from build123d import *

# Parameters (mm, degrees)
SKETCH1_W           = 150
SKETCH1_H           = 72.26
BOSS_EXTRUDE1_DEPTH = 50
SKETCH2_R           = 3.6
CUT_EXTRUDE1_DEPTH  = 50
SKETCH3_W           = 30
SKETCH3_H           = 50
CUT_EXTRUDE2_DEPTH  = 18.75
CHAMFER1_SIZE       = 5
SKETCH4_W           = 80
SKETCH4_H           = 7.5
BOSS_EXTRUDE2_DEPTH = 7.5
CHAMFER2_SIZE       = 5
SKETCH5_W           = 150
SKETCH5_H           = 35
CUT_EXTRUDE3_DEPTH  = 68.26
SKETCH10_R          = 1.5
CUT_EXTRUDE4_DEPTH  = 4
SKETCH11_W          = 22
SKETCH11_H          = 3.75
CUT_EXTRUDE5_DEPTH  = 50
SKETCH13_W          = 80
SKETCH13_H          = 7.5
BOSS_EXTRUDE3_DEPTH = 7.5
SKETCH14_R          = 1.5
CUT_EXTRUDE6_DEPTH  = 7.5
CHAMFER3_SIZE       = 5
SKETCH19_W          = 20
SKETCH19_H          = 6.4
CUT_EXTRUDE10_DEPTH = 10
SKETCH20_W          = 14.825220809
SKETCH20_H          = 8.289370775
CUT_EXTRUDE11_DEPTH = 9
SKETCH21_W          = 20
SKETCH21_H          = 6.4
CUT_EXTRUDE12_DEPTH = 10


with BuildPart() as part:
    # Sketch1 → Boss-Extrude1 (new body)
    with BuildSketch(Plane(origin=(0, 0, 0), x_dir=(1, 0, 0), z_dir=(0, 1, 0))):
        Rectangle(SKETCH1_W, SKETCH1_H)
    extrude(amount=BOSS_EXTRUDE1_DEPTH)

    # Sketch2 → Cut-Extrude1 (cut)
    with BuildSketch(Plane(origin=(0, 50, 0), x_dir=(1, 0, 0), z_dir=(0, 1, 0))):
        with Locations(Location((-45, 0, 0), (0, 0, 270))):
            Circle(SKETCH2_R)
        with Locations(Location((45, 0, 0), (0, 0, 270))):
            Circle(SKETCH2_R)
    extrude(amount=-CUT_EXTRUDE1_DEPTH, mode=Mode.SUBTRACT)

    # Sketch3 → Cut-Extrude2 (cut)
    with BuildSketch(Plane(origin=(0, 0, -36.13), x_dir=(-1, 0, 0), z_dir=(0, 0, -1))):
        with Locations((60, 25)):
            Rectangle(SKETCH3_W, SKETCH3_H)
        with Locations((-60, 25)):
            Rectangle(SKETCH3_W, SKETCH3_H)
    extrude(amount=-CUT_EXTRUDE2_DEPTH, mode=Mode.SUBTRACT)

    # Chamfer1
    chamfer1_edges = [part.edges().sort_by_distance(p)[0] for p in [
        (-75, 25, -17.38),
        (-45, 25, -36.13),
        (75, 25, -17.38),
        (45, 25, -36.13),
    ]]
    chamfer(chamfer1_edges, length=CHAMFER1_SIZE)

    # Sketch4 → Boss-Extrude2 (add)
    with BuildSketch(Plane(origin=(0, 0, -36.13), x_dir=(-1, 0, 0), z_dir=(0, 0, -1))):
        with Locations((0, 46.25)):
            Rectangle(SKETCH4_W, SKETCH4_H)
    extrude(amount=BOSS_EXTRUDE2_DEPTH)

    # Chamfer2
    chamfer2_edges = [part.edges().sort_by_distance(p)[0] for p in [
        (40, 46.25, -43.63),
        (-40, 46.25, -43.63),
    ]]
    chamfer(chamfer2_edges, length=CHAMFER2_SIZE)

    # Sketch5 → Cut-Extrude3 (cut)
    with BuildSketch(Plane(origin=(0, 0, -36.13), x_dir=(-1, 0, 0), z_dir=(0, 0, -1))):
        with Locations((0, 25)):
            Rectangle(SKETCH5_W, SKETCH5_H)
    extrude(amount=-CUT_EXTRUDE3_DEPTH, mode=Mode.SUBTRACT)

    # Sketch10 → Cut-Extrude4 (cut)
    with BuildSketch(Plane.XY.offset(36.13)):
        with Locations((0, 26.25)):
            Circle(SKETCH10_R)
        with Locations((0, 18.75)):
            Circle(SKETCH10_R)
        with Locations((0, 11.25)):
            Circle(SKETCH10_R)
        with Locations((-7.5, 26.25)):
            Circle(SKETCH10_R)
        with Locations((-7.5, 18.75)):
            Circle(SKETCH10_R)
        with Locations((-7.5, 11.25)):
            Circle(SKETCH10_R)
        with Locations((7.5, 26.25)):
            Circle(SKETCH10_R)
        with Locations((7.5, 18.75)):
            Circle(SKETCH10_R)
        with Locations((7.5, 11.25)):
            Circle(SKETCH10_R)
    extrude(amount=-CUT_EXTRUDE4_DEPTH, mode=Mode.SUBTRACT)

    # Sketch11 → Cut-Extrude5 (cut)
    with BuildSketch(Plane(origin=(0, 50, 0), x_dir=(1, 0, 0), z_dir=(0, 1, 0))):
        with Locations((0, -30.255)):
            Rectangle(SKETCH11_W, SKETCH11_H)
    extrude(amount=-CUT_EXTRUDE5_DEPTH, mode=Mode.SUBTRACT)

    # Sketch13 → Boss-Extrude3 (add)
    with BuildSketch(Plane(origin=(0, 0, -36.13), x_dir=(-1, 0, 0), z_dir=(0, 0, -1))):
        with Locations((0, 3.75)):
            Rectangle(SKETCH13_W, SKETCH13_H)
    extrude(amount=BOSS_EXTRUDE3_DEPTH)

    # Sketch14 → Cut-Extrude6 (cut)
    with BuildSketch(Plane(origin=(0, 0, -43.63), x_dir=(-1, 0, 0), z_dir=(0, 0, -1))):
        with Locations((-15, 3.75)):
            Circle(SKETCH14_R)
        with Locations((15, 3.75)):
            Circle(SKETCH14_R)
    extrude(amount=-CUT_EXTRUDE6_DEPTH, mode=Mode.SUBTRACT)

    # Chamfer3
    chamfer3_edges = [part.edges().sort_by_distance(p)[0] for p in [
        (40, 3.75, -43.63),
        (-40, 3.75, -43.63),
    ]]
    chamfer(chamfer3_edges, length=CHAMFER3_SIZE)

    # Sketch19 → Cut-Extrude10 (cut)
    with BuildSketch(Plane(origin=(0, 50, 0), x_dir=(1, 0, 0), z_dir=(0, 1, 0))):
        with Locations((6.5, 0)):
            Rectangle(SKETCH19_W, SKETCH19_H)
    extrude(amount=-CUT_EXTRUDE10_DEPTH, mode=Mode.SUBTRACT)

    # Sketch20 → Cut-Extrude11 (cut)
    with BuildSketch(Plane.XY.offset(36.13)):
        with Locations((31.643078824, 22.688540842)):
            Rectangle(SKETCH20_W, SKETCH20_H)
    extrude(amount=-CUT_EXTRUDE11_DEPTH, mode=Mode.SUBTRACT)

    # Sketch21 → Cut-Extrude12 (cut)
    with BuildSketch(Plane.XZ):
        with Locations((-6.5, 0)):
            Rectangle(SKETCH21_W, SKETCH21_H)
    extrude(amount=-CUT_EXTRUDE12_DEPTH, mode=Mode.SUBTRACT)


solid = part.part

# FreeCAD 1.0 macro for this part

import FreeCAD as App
import Part
import Sketcher

V = App.Vector


def edges_at(feature, points):
    """Names of the edges that pass closest to the given points."""
    edges = feature.Shape.Edges
    near = lambda p: min(range(len(edges)), key=lambda i: edges[i].distToShape(Part.Vertex(*p))[0])
    return sorted({f"Edge{near(p) + 1}" for p in points})

doc = App.newDocument("Part")
body = doc.addObject("PartDesign::Body", "Body")

sketch1 = body.newObject("Sketcher::SketchObject", "Sketch")
sketch1.AttachmentSupport = (doc.getObject("XZ_Plane"), [""])
sketch1.MapMode = "FlatFace"
sketch1.addGeometry([
    Part.LineSegment(V(-75, -36, 0), V(-75, 36, 0)),
    Part.LineSegment(V(-75, 36, 0), V(75, 36, 0)),
    Part.LineSegment(V(75, 36, 0), V(75, -36, 0)),
    Part.LineSegment(V(75, -36, 0), V(-75, -36, 0)),
], False)
sketch1.addConstraint([
    Sketcher.Constraint("Coincident", 0, 2, 1, 1),
    Sketcher.Constraint("Coincident", 1, 2, 2, 1),
    Sketcher.Constraint("Coincident", 2, 2, 3, 1),
    Sketcher.Constraint("Coincident", 3, 2, 0, 1),
    Sketcher.Constraint("Vertical", 0),
    Sketcher.Constraint("Horizontal", 1),
    Sketcher.Constraint("Vertical", 2),
    Sketcher.Constraint("Horizontal", 3),
    Sketcher.Constraint("Symmetric", 0, 2, 2, 2, -1, 1),
    Sketcher.Constraint("DistanceX", 1, 1, 1, 2, 150.0),
    Sketcher.Constraint("DistanceY", 0, 1, 0, 2, 72.26),
])
pad1 = body.newObject("PartDesign::Pad", "Pad")
pad1.Profile = sketch1
pad1.Length = 50
pad1.Reversed = True

sketch2 = body.newObject("Sketcher::SketchObject", "Sketch001")
sketch2.AttachmentSupport = (doc.getObject("XZ_Plane"), [""])
sketch2.MapMode = "FlatFace"
sketch2.AttachmentOffset = App.Placement(V(0, 0, -50), App.Rotation())
sketch2.addGeometry([
    Part.Circle(V(-45, 0, 0), V(0, 0, 1), 3.6),
    Part.Circle(V(45, 0, 0), V(0, 0, 1), 3.6),
], False)
sketch2.addConstraint([
    Sketcher.Constraint("Equal", 0, 1),
    Sketcher.Constraint("Symmetric", 0, 3, 1, 3, -1, 1),
    Sketcher.Constraint("PointOnObject", 0, 3, -1),
    Sketcher.Constraint("Diameter", 0, 7.2),
    Sketcher.Constraint("DistanceX", 0, 3, -1, 1, 45.0),
])
pocket1 = body.newObject("PartDesign::Pocket", "Pocket")
pocket1.Profile = sketch2
pocket1.Length = 50
pocket1.Reversed = True

sketch3 = body.newObject("Sketcher::SketchObject", "Sketch002")
sketch3.AttachmentSupport = (doc.getObject("XY_Plane"), [""])
sketch3.MapMode = "FlatFace"
sketch3.AttachmentOffset = App.Placement(V(0, 0, -36.13), App.Rotation())
sketch3.addGeometry([
    Part.LineSegment(V(-45, 50, 0), V(-45, 0, 0)),
    Part.LineSegment(V(-45, 0, 0), V(-75, 0, 0)),
    Part.LineSegment(V(-75, 0, 0), V(-75, 50, 0)),
    Part.LineSegment(V(-75, 50, 0), V(-45, 50, 0)),
    Part.LineSegment(V(75, 50, 0), V(75, 0, 0)),
    Part.LineSegment(V(75, 0, 0), V(45, 0, 0)),
    Part.LineSegment(V(45, 0, 0), V(45, 50, 0)),
    Part.LineSegment(V(45, 50, 0), V(75, 50, 0)),
], False)
sketch3.addConstraint([
    Sketcher.Constraint("Coincident", 0, 2, 1, 1),
    Sketcher.Constraint("Coincident", 1, 2, 2, 1),
    Sketcher.Constraint("Coincident", 2, 2, 3, 1),
    Sketcher.Constraint("Coincident", 3, 2, 0, 1),
    Sketcher.Constraint("Coincident", 4, 2, 5, 1),
    Sketcher.Constraint("Coincident", 5, 2, 6, 1),
    Sketcher.Constraint("Coincident", 6, 2, 7, 1),
    Sketcher.Constraint("Coincident", 7, 2, 4, 1),
    Sketcher.Constraint("Vertical", 0),
    Sketcher.Constraint("Horizontal", 1),
    Sketcher.Constraint("Vertical", 2),
    Sketcher.Constraint("Horizontal", 3),
    Sketcher.Constraint("Vertical", 4),
    Sketcher.Constraint("Horizontal", 5),
    Sketcher.Constraint("Vertical", 6),
    Sketcher.Constraint("Horizontal", 7),
    Sketcher.Constraint("Symmetric", 1, 2, 4, 2, -1, 1),
    Sketcher.Constraint("Symmetric", 0, 2, 5, 2, -2),
    Sketcher.Constraint("Horizontal", 3, 2, 6, 2),
    Sketcher.Constraint("DistanceX", 1, 2, 1, 1, 30.0),
    Sketcher.Constraint("DistanceY", 0, 2, 0, 1, 50.0),
    Sketcher.Constraint("DistanceX", 0, 2, -1, 1, 45.0),
])
pocket2 = body.newObject("PartDesign::Pocket", "Pocket001")
pocket2.Profile = sketch3
pocket2.Length = 18.75
pocket2.Reversed = True
doc.recompute()

chamfer = body.newObject("PartDesign::Chamfer", "Chamfer")
chamfer.Base = (pocket2, edges_at(pocket2, [
    (-75, 25, -17.38),
    (-45, 25, -36.13),
    (75, 25, -17.38),
    (45, 25, -36.13),
]))
chamfer.Size = 5

sketch4 = body.newObject("Sketcher::SketchObject", "Sketch003")
sketch4.AttachmentSupport = (doc.getObject("XY_Plane"), [""])
sketch4.MapMode = "FlatFace"
sketch4.AttachmentOffset = App.Placement(V(0, 0, -36.13), App.Rotation())
sketch4.addGeometry([
    Part.LineSegment(V(40, 50, 0), V(40, 42, 0)),
    Part.LineSegment(V(40, 42, 0), V(-40, 42, 0)),
    Part.LineSegment(V(-40, 42, 0), V(-40, 50, 0)),
    Part.LineSegment(V(-40, 50, 0), V(40, 50, 0)),
], False)
sketch4.addConstraint([
    Sketcher.Constraint("Coincident", 0, 2, 1, 1),
    Sketcher.Constraint("Coincident", 1, 2, 2, 1),
    Sketcher.Constraint("Coincident", 2, 2, 3, 1),
    Sketcher.Constraint("Coincident", 3, 2, 0, 1),
    Sketcher.Constraint("Vertical", 0),
    Sketcher.Constraint("Horizontal", 1),
    Sketcher.Constraint("Vertical", 2),
    Sketcher.Constraint("Horizontal", 3),
    Sketcher.Constraint("DistanceX", 1, 2, 1, 1, 80.0),
    Sketcher.Constraint("DistanceY", 0, 2, 0, 1, 7.5),
    Sketcher.Constraint("DistanceX", -1, 1, 0, 2, 40.0),
    Sketcher.Constraint("DistanceY", -1, 1, 2, 2, 50.0),
])
pad2 = body.newObject("PartDesign::Pad", "Pad001")
pad2.Profile = sketch4
pad2.Length = 7.5
pad2.Reversed = True
doc.recompute()

chamfer2 = body.newObject("PartDesign::Chamfer", "Chamfer001")
chamfer2.Base = (pad2, edges_at(pad2, [(40, 46.25, -43.63), (-40, 46.25, -43.63)]))
chamfer2.Size = 5

sketch5 = body.newObject("Sketcher::SketchObject", "Sketch004")
sketch5.AttachmentSupport = (doc.getObject("XY_Plane"), [""])
sketch5.MapMode = "FlatFace"
sketch5.AttachmentOffset = App.Placement(V(0, 0, -36.13), App.Rotation())
sketch5.addGeometry([
    Part.LineSegment(V(75, 42, 0), V(75, 8, 0)),
    Part.LineSegment(V(75, 8, 0), V(-75, 8, 0)),
    Part.LineSegment(V(-75, 8, 0), V(-75, 42, 0)),
    Part.LineSegment(V(-75, 42, 0), V(75, 42, 0)),
], False)
sketch5.addConstraint([
    Sketcher.Constraint("Coincident", 0, 2, 1, 1),
    Sketcher.Constraint("Coincident", 1, 2, 2, 1),
    Sketcher.Constraint("Coincident", 2, 2, 3, 1),
    Sketcher.Constraint("Coincident", 3, 2, 0, 1),
    Sketcher.Constraint("Vertical", 0),
    Sketcher.Constraint("Horizontal", 1),
    Sketcher.Constraint("Vertical", 2),
    Sketcher.Constraint("Horizontal", 3),
    Sketcher.Constraint("DistanceX", 1, 2, 1, 1, 150.0),
    Sketcher.Constraint("DistanceY", 0, 2, 0, 1, 35.0),
    Sketcher.Constraint("DistanceX", -1, 1, 0, 2, 75.0),
    Sketcher.Constraint("DistanceY", -1, 1, 0, 2, 7.5),
])
pocket3 = body.newObject("PartDesign::Pocket", "Pocket002")
pocket3.Profile = sketch5
pocket3.Length = 68.26
pocket3.Reversed = True

sketch6 = body.newObject("Sketcher::SketchObject", "Sketch005")
sketch6.AttachmentSupport = (doc.getObject("XY_Plane"), [""])
sketch6.MapMode = "FlatFace"
sketch6.AttachmentOffset = App.Placement(V(0, 0, 36.13), App.Rotation())
sketch6.addGeometry([
    Part.Circle(V(0, 26.2, 0), V(0, 0, 1), 1.5),
    Part.Circle(V(0, 18.8, 0), V(0, 0, 1), 1.5),
    Part.Circle(V(0, 11.2, 0), V(0, 0, 1), 1.5),
    Part.Circle(V(-7.5, 26.2, 0), V(0, 0, 1), 1.5),
    Part.Circle(V(-7.5, 18.8, 0), V(0, 0, 1), 1.5),
    Part.Circle(V(-7.5, 11.2, 0), V(0, 0, 1), 1.5),
    Part.Circle(V(7.5, 26.2, 0), V(0, 0, 1), 1.5),
    Part.Circle(V(7.5, 18.8, 0), V(0, 0, 1), 1.5),
    Part.Circle(V(7.5, 11.2, 0), V(0, 0, 1), 1.5),
], False)
sketch6.addConstraint([
    Sketcher.Constraint("Equal", 0, 1),
    Sketcher.Constraint("Equal", 1, 2),
    Sketcher.Constraint("Equal", 2, 3),
    Sketcher.Constraint("Equal", 3, 4),
    Sketcher.Constraint("Equal", 4, 5),
    Sketcher.Constraint("Equal", 5, 6),
    Sketcher.Constraint("Equal", 6, 7),
    Sketcher.Constraint("Equal", 7, 8),
    Sketcher.Constraint("Symmetric", 3, 3, 6, 3, -2),
    Sketcher.Constraint("Symmetric", 4, 3, 7, 3, -2),
    Sketcher.Constraint("Symmetric", 5, 3, 8, 3, -2),
    Sketcher.Constraint("PointOnObject", 0, 3, -2),
    Sketcher.Constraint("PointOnObject", 1, 3, -2),
    Sketcher.Constraint("PointOnObject", 2, 3, -2),
    Sketcher.Constraint("Horizontal", 0, 3, 3, 3),
    Sketcher.Constraint("Horizontal", 1, 3, 4, 3),
    Sketcher.Constraint("Horizontal", 2, 3, 5, 3),
    Sketcher.Constraint("Vertical", 3, 3, 4, 3),
    Sketcher.Constraint("Vertical", 4, 3, 5, 3),
    Sketcher.Constraint("Diameter", 0, 3.0),
    Sketcher.Constraint("DistanceY", 2, 3, 0, 3, 15.0),
    Sketcher.Constraint("DistanceX", 3, 3, 6, 3, 15.0),
    Sketcher.Constraint("DistanceY", 1, 3, 0, 3, 7.5),
    Sketcher.Constraint("DistanceY", -1, 1, 0, 3, 26.25),
])
pocket4 = body.newObject("PartDesign::Pocket", "Pocket003")
pocket4.Profile = sketch6
pocket4.Length = 4

sketch7 = body.newObject("Sketcher::SketchObject", "Sketch006")
sketch7.AttachmentSupport = (doc.getObject("XZ_Plane"), [""])
sketch7.MapMode = "FlatFace"
sketch7.AttachmentOffset = App.Placement(V(0, 0, -50), App.Rotation())
sketch7.addGeometry([
    Part.LineSegment(V(-11, 28.4, 0), V(-11, 32.1, 0)),
    Part.LineSegment(V(-11, 32.1, 0), V(11, 32.1, 0)),
    Part.LineSegment(V(11, 32.1, 0), V(11, 28.4, 0)),
    Part.LineSegment(V(11, 28.4, 0), V(-11, 28.4, 0)),
], False)
sketch7.addConstraint([
    Sketcher.Constraint("Coincident", 0, 2, 1, 1),
    Sketcher.Constraint("Coincident", 1, 2, 2, 1),
    Sketcher.Constraint("Coincident", 2, 2, 3, 1),
    Sketcher.Constraint("Coincident", 3, 2, 0, 1),
    Sketcher.Constraint("Vertical", 0),
    Sketcher.Constraint("Horizontal", 1),
    Sketcher.Constraint("Vertical", 2),
    Sketcher.Constraint("Horizontal", 3),
    Sketcher.Constraint("DistanceX", 1, 1, 1, 2, 22.0),
    Sketcher.Constraint("DistanceX", 0, 2, -1, 1, 11.0),
    Sketcher.Constraint("DistanceY", 0, 1, 0, 2, 3.75),
    Sketcher.Constraint("DistanceY", -1, 1, 0, 2, 32.13),
])
pocket5 = body.newObject("PartDesign::Pocket", "Pocket004")
pocket5.Profile = sketch7
pocket5.Length = 50
pocket5.Reversed = True

sketch8 = body.newObject("Sketcher::SketchObject", "Sketch007")
sketch8.AttachmentSupport = (doc.getObject("XY_Plane"), [""])
sketch8.MapMode = "FlatFace"
sketch8.AttachmentOffset = App.Placement(V(0, 0, -36.13), App.Rotation())
sketch8.addGeometry([
    Part.LineSegment(V(40, 8, 0), V(40, 0, 0)),
    Part.LineSegment(V(40, 0, 0), V(-40, 0, 0)),
    Part.LineSegment(V(-40, 0, 0), V(-40, 8, 0)),
    Part.LineSegment(V(-40, 8, 0), V(40, 8, 0)),
], False)
sketch8.addConstraint([
    Sketcher.Constraint("Coincident", 0, 2, 1, 1),
    Sketcher.Constraint("Coincident", 1, 2, 2, 1),
    Sketcher.Constraint("Coincident", 2, 2, 3, 1),
    Sketcher.Constraint("Coincident", 3, 2, 0, 1),
    Sketcher.Constraint("Vertical", 0),
    Sketcher.Constraint("Horizontal", 1),
    Sketcher.Constraint("Vertical", 2),
    Sketcher.Constraint("Horizontal", 3),
    Sketcher.Constraint("Symmetric", 0, 2, 1, 2, -1, 1),
    Sketcher.Constraint("DistanceX", 1, 2, 1, 1, 80.0),
    Sketcher.Constraint("DistanceY", 0, 2, 0, 1, 7.5),
])
pad3 = body.newObject("PartDesign::Pad", "Pad002")
pad3.Profile = sketch8
pad3.Length = 7.5
pad3.Reversed = True

sketch9 = body.newObject("Sketcher::SketchObject", "Sketch008")
sketch9.AttachmentSupport = (doc.getObject("XY_Plane"), [""])
sketch9.MapMode = "FlatFace"
sketch9.AttachmentOffset = App.Placement(V(0, 0, -43.63), App.Rotation())
sketch9.addGeometry([
    Part.Circle(V(15, 3.8, 0), V(0, 0, 1), 1.5),
    Part.Circle(V(-15, 3.8, 0), V(0, 0, 1), 1.5),
], False)
sketch9.addConstraint([
    Sketcher.Constraint("Equal", 0, 1),
    Sketcher.Constraint("Symmetric", 0, 3, 1, 3, -2),
    Sketcher.Constraint("Diameter", 0, 3.0),
    Sketcher.Constraint("DistanceX", -1, 1, 0, 3, 15.0),
    Sketcher.Constraint("DistanceY", -1, 1, 0, 3, 3.75),
])
pocket6 = body.newObject("PartDesign::Pocket", "Pocket005")
pocket6.Profile = sketch9
pocket6.Length = 7.5
pocket6.Reversed = True
doc.recompute()

chamfer3 = body.newObject("PartDesign::Chamfer", "Chamfer002")
chamfer3.Base = (pocket6, edges_at(pocket6, [(40, 3.75, -43.63), (-40, 3.75, -43.63)]))
chamfer3.Size = 5

sketch10 = body.newObject("Sketcher::SketchObject", "Sketch009")
sketch10.AttachmentSupport = (doc.getObject("XZ_Plane"), [""])
sketch10.MapMode = "FlatFace"
sketch10.AttachmentOffset = App.Placement(V(0, 0, -50), App.Rotation())
sketch10.addGeometry([
    Part.LineSegment(V(-4, -3, 0), V(-4, 3, 0)),
    Part.LineSegment(V(-4, 3, 0), V(16, 3, 0)),
    Part.LineSegment(V(16, 3, 0), V(16, -3, 0)),
    Part.LineSegment(V(16, -3, 0), V(-4, -3, 0)),
], False)
sketch10.addConstraint([
    Sketcher.Constraint("Coincident", 0, 2, 1, 1),
    Sketcher.Constraint("Coincident", 1, 2, 2, 1),
    Sketcher.Constraint("Coincident", 2, 2, 3, 1),
    Sketcher.Constraint("Coincident", 3, 2, 0, 1),
    Sketcher.Constraint("Vertical", 0),
    Sketcher.Constraint("Horizontal", 1),
    Sketcher.Constraint("Vertical", 2),
    Sketcher.Constraint("Horizontal", 3),
    Sketcher.Constraint("DistanceX", 1, 1, 1, 2, 20.0),
    Sketcher.Constraint("DistanceY", 0, 1, 0, 2, 6.4),
    Sketcher.Constraint("DistanceX", 0, 2, -1, 1, 3.5),
    Sketcher.Constraint("DistanceY", -1, 1, 0, 2, 3.2),
])
pocket7 = body.newObject("PartDesign::Pocket", "Pocket006")
pocket7.Profile = sketch10
pocket7.Length = 10
pocket7.Reversed = True

sketch11 = body.newObject("Sketcher::SketchObject", "Sketch010")
sketch11.AttachmentSupport = (doc.getObject("XY_Plane"), [""])
sketch11.MapMode = "FlatFace"
sketch11.AttachmentOffset = App.Placement(V(0, 0, 36.13), App.Rotation())
sketch11.addGeometry([
    Part.LineSegment(V(24, 27, 0), V(24, 19, 0)),
    Part.LineSegment(V(24, 19, 0), V(39, 19, 0)),
    Part.LineSegment(V(39, 19, 0), V(39, 27, 0)),
    Part.LineSegment(V(39, 27, 0), V(24, 27, 0)),
], False)
sketch11.addConstraint([
    Sketcher.Constraint("Coincident", 0, 2, 1, 1),
    Sketcher.Constraint("Coincident", 1, 2, 2, 1),
    Sketcher.Constraint("Coincident", 2, 2, 3, 1),
    Sketcher.Constraint("Coincident", 3, 2, 0, 1),
    Sketcher.Constraint("Vertical", 0),
    Sketcher.Constraint("Horizontal", 1),
    Sketcher.Constraint("Vertical", 2),
    Sketcher.Constraint("Horizontal", 3),
    Sketcher.Constraint("DistanceX", 1, 1, 1, 2, 14.825221),
    Sketcher.Constraint("DistanceY", 0, 2, 0, 1, 8.289371),
    Sketcher.Constraint("DistanceX", -1, 1, 0, 2, 24.230468),
    Sketcher.Constraint("DistanceY", -1, 1, 0, 2, 18.543855),
])
pocket8 = body.newObject("PartDesign::Pocket", "Pocket007")
pocket8.Profile = sketch11
pocket8.Length = 9

sketch12 = body.newObject("Sketcher::SketchObject", "Sketch011")
sketch12.AttachmentSupport = (doc.getObject("XZ_Plane"), [""])
sketch12.MapMode = "FlatFace"
sketch12.addGeometry([
    Part.LineSegment(V(-16, 3, 0), V(-16, -3, 0)),
    Part.LineSegment(V(-16, -3, 0), V(4, -3, 0)),
    Part.LineSegment(V(4, -3, 0), V(4, 3, 0)),
    Part.LineSegment(V(4, 3, 0), V(-16, 3, 0)),
], False)
sketch12.addConstraint([
    Sketcher.Constraint("Coincident", 0, 2, 1, 1),
    Sketcher.Constraint("Coincident", 1, 2, 2, 1),
    Sketcher.Constraint("Coincident", 2, 2, 3, 1),
    Sketcher.Constraint("Coincident", 3, 2, 0, 1),
    Sketcher.Constraint("Vertical", 0),
    Sketcher.Constraint("Horizontal", 1),
    Sketcher.Constraint("Vertical", 2),
    Sketcher.Constraint("Horizontal", 3),
    Sketcher.Constraint("DistanceX", 1, 1, 1, 2, 20.0),
    Sketcher.Constraint("DistanceY", 0, 2, 0, 1, 6.4),
    Sketcher.Constraint("DistanceX", 0, 2, -1, 1, 16.5),
    Sketcher.Constraint("DistanceY", 0, 2, -1, 1, 3.2),
])
pocket9 = body.newObject("PartDesign::Pocket", "Pocket008")
pocket9.Profile = sketch12
pocket9.Length = 10

doc.recompute()
